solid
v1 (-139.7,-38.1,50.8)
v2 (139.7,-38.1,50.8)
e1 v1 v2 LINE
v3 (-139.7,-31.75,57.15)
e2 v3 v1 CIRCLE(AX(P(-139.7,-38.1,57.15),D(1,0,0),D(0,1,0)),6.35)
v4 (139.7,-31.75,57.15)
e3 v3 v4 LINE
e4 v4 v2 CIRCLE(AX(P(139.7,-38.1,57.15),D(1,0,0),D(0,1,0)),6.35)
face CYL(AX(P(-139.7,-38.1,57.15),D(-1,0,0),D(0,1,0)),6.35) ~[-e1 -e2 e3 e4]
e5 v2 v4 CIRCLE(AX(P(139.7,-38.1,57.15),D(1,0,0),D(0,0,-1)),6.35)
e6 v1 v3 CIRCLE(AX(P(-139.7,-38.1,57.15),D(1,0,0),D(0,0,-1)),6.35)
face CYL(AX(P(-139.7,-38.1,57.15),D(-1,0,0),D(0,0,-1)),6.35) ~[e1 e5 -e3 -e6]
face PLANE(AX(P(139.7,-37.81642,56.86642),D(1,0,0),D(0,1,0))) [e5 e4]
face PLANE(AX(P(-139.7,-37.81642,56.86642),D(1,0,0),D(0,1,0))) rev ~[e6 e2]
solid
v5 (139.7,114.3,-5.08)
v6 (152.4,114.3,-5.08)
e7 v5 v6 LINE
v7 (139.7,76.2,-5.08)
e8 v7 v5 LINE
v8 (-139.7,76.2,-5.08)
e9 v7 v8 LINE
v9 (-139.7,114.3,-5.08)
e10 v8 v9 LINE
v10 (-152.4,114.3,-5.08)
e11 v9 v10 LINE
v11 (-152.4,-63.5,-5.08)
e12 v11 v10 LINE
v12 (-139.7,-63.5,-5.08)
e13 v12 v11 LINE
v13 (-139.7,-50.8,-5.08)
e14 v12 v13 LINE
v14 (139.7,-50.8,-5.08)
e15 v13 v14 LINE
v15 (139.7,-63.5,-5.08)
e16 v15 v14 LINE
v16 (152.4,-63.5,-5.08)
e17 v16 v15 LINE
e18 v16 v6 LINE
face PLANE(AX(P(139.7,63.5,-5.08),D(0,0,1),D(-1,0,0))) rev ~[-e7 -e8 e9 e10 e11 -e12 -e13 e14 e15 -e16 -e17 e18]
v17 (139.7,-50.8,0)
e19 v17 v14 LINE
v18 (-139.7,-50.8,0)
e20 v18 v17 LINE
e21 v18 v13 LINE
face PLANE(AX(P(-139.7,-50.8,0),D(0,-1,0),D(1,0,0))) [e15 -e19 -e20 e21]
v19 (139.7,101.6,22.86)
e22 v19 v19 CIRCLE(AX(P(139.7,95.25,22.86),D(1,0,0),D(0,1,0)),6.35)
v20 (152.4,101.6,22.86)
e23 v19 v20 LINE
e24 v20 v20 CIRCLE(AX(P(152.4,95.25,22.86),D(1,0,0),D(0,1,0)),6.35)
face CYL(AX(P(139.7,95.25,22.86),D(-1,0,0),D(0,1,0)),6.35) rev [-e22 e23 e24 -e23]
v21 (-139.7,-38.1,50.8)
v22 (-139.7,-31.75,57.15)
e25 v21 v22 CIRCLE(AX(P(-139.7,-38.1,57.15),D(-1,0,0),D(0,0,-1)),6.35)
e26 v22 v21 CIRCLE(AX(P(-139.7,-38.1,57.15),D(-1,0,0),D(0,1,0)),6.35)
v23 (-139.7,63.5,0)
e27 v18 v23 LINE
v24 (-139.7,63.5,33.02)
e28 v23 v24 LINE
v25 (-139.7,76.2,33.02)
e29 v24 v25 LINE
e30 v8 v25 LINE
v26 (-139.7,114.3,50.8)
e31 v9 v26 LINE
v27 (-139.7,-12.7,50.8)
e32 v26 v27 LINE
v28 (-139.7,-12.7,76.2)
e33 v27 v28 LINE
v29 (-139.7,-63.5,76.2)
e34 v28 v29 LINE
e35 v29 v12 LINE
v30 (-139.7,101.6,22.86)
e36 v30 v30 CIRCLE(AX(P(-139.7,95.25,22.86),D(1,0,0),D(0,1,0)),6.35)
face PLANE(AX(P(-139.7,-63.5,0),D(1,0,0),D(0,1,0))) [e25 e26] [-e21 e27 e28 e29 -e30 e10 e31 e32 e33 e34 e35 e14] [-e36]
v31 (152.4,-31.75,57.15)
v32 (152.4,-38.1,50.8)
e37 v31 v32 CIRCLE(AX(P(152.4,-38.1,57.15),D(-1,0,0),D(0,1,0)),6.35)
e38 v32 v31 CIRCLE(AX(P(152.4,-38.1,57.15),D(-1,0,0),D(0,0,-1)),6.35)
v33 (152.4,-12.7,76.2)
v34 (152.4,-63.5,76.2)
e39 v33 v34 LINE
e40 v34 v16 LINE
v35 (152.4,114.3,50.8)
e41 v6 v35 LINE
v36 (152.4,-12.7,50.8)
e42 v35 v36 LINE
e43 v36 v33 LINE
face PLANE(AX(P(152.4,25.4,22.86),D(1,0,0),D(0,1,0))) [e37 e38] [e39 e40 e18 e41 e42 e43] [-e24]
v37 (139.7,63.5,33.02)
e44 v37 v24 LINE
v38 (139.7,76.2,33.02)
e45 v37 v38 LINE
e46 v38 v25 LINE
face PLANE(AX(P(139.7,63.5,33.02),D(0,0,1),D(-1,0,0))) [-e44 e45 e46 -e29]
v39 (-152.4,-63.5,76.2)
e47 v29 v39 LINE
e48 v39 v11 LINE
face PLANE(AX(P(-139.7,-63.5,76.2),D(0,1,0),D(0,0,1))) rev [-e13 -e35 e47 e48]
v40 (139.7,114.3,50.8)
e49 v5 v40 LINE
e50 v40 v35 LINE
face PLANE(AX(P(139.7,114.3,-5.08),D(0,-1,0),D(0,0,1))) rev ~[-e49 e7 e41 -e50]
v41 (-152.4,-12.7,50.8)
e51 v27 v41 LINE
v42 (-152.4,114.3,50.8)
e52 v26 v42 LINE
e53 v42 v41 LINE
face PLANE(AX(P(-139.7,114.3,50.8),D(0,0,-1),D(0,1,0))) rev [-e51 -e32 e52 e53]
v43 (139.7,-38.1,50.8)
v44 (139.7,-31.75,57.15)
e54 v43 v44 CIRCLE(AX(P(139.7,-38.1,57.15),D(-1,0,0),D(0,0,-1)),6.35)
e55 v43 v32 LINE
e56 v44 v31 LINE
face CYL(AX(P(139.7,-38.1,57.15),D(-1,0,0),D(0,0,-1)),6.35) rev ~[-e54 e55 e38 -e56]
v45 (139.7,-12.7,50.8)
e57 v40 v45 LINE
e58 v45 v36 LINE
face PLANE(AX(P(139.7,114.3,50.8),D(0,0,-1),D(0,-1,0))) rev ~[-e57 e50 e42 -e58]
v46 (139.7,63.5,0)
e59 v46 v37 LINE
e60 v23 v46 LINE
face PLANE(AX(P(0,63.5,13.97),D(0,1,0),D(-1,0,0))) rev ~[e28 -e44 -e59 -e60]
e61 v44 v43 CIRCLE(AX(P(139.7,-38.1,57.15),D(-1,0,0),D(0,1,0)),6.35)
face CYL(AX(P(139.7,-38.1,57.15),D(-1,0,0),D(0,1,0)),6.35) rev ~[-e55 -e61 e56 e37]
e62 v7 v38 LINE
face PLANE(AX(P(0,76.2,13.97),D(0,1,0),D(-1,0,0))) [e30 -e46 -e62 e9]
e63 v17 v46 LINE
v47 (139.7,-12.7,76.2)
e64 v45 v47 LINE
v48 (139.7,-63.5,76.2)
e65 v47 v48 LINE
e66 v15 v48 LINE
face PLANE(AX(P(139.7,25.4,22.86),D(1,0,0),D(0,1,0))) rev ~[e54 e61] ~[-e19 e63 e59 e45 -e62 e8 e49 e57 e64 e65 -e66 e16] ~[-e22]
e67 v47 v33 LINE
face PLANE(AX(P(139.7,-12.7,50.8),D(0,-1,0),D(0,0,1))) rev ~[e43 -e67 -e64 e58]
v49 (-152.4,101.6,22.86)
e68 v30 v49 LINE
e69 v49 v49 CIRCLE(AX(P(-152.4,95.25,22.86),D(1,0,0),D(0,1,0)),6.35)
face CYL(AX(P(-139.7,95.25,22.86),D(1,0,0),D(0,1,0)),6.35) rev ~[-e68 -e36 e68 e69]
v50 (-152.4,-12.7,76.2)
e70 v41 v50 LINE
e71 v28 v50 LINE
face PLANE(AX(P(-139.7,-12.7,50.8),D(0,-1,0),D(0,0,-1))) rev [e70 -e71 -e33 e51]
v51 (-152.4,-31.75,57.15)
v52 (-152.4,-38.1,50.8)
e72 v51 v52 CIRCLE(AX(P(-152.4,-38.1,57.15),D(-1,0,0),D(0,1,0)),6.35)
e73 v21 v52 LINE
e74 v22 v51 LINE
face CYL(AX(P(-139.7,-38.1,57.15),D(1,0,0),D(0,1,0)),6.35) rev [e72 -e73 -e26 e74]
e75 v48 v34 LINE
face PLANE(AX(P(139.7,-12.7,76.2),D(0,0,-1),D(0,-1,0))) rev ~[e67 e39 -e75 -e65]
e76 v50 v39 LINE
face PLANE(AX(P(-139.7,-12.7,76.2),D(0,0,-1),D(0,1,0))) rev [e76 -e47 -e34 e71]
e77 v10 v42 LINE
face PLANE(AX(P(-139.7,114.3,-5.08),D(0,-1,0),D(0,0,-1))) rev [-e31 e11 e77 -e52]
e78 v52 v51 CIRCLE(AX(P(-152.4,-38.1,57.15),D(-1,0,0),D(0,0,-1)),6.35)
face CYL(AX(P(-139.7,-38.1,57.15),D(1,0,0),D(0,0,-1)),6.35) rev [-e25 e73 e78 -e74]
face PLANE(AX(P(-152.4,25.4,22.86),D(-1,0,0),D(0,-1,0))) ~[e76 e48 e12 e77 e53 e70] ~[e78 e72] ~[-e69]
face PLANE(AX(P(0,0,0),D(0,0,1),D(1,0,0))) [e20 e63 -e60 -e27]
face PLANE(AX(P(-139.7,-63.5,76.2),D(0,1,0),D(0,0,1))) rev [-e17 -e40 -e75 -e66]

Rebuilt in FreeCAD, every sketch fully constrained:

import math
import FreeCAD as App
import Part
import Sketcher

V = App.Vector
Q = App.Units.Quantity

doc = App.newDocument("Part")
body = doc.addObject("PartDesign::Body", "Body")

# Sketch on XY plane
sketch1 = body.newObject("Sketcher::SketchObject", "Sketch")
sketch1.AttachmentSupport = (doc.getObject("XY_Plane"), [""])
sketch1.MapMode = "FlatFace"
sketch1.addGeometry([
    Part.LineSegment(V(-140, 64, 0), V(-140, -64, 0)),
    Part.LineSegment(V(-140, -64, 0), V(140, -64, 0)),
    Part.LineSegment(V(140, -64, 0), V(140, 64, 0)),
    Part.LineSegment(V(140, 64, 0), V(-140, 64, 0)),
], False)
sketch1.addConstraint([
    Sketcher.Constraint("Coincident", 0, 2, 1, 1),
    Sketcher.Constraint("Coincident", 1, 2, 2, 1),
    Sketcher.Constraint("Coincident", 2, 2, 3, 1),
    Sketcher.Constraint("Coincident", 3, 2, 0, 1),
    Sketcher.Constraint("Vertical", 0),
    Sketcher.Constraint("Horizontal", 1),
    Sketcher.Constraint("Vertical", 2),
    Sketcher.Constraint("Horizontal", 3),
    Sketcher.Constraint("Symmetric", 0, 2, 2, 2, -1, 1),
    Sketcher.Constraint("DistanceX", 1, 1, 1, 2, Q("11 in")),
    Sketcher.Constraint("DistanceY", 0, 2, 0, 1, Q("5 in")),
])
pad1 = body.newObject("PartDesign::Pad", "Pad")
pad1.Profile = sketch1
pad1.Length = Q("0.2 in")
pad1.Reversed = True

# Sketch on YZ plane
sketch2 = body.newObject("Sketcher::SketchObject", "Sketch001")
sketch2.AttachmentSupport = (doc.getObject("YZ_Plane"), [""])
sketch2.MapMode = "FlatFace"
sketch2.AttachmentOffset = App.Placement(V(0, 0, 5.5 * 25.4), App.Rotation())
sketch2.addGeometry([
    Part.LineSegment(V(-64, -5, 0), V(114, -5, 0)),  # 0
    Part.LineSegment(V(114, -5, 0), V(114, 51, 0)),  # 1
    Part.LineSegment(V(114, 51, 0), V(-13, 51, 0)),  # 2
    Part.LineSegment(V(-13, 51, 0), V(-13, 76, 0)),  # 3
    Part.LineSegment(V(-13, 76, 0), V(-64, 76, 0)),  # 4
    Part.LineSegment(V(-64, 76, 0), V(-64, -5, 0)),  # 5
    Part.Circle(V(95, 23, 0), V(0, 0, 1), 6),  # 6
    Part.ArcOfCircle(Part.Circle(V(-38, 57, 0), V(0, 0, 1), 6), math.radians(0), math.radians(270)),  # 7
    Part.ArcOfCircle(Part.Circle(V(-38, 57, 0), V(0, 0, 1), 6), math.radians(-90), math.radians(0)),  # 8
], False)
sketch2.addConstraint([
    Sketcher.Constraint("Coincident", 0, 2, 1, 1),
    Sketcher.Constraint("Coincident", 1, 2, 2, 1),
    Sketcher.Constraint("Coincident", 2, 2, 3, 1),
    Sketcher.Constraint("Coincident", 3, 2, 4, 1),
    Sketcher.Constraint("Coincident", 4, 2, 5, 1),
    Sketcher.Constraint("Coincident", 5, 2, 0, 1),
    Sketcher.Constraint("Tangent", 7, 1, 8, 2),
    Sketcher.Constraint("Coincident", 8, 1, 7, 2),
    Sketcher.Constraint("Horizontal", 0),
    Sketcher.Constraint("Vertical", 1),
    Sketcher.Constraint("Horizontal", 2),
    Sketcher.Constraint("Vertical", 3),
    Sketcher.Constraint("Horizontal", 4),
    Sketcher.Constraint("Vertical", 5),
    Sketcher.Constraint("Equal", 6, 7),
    Sketcher.Constraint("Horizontal", 8, 3, 7, 1),
    Sketcher.Constraint("Horizontal", 2, 2, 8, 1),
    Sketcher.Constraint("Vertical", 7, 3, 8, 1),
    Sketcher.Constraint("Diameter", 6, Q("0.5 in")),
    Sketcher.Constraint("DistanceX", 0, 1, 0, 2, Q("7 in")),
    Sketcher.Constraint("DistanceX", 2, 2, 2, 1, Q("5 in")),
    Sketcher.Constraint("DistanceY", 3, 1, 3, 2, Q("1 in")),
    Sketcher.Constraint("DistanceY", 1, 1, 1, 2, Q("2.2 in")),
    Sketcher.Constraint("DistanceY", -1, 1, 1, 2, Q("2 in")),
    Sketcher.Constraint("DistanceX", 7, 3, 0, 2, Q("6 in")),
    Sketcher.Constraint("DistanceY", -1, 1, 6, 3, Q("0.9 in")),
    Sketcher.Constraint("DistanceX", 7, 3, -1, 1, Q("1.5 in")),
    Sketcher.Constraint("DistanceX", -1, 1, 6, 3, Q("3.75 in")),
])
pad2 = body.newObject("PartDesign::Pad", "Pad001")
pad2.Profile = sketch2
pad2.Length = Q("0.5 in")
body2 = doc.addObject("PartDesign::Body", "Body001")
doc.recompute()

body2.BaseFeature = body
doc.recompute()

mirroring = doc.addObject("Part::Mirroring", "Mirroring")
mirroring.Source = body
mirroring.Base = V(0, 0, 0)
mirroring.Normal = V(1, 0, 0)
body3 = doc.addObject("PartDesign::Body", "Body002")
body3.BaseFeature = mirroring
boolean = body2.newObject("PartDesign::Boolean", "Boolean")
boolean.Type = "Fuse"
boolean.addObjects([body3])
doc.recompute()

# Sketch on XZ plane
sketch3 = body2.newObject("Sketcher::SketchObject", "Sketch002")
sketch3.AttachmentSupport = (doc.getObject("XZ_Plane001"), [""])
sketch3.MapMode = "FlatFace"
sketch3.AttachmentOffset = App.Placement(V(0, 0, -2.5 * 25.4), App.Rotation())
sketch3.addGeometry([
    Part.LineSegment(V(140, 33, 0), V(140, -5, 0)),
    Part.LineSegment(V(140, -5, 0), V(-140, -5, 0)),
    Part.LineSegment(V(-140, -5, 0), V(-140, 33, 0)),
    Part.LineSegment(V(-140, 33, 0), V(140, 33, 0)),
], False)
sketch3.addConstraint([
    Sketcher.Constraint("Coincident", 0, 2, 1, 1),
    Sketcher.Constraint("Coincident", 1, 2, 2, 1),
    Sketcher.Constraint("Coincident", 2, 2, 3, 1),
    Sketcher.Constraint("Coincident", 3, 2, 0, 1),
    Sketcher.Constraint("Vertical", 0),
    Sketcher.Constraint("Horizontal", 1),
    Sketcher.Constraint("Vertical", 2),
    Sketcher.Constraint("Horizontal", 3),
    Sketcher.Constraint("DistanceX", 1, 2, 1, 1, Q("11 in")),
    Sketcher.Constraint("DistanceY", 0, 2, 0, 1, Q("1.5 in")),
    Sketcher.Constraint("DistanceX", -1, 1, 0, 2, Q("5.5 in")),
    Sketcher.Constraint("DistanceY", 0, 2, -1, 1, Q("0.2 in")),
])
pad3 = body2.newObject("PartDesign::Pad", "Pad002")
pad3.Profile = sketch3
pad3.Length = Q("0.5 in")
pad3.Reversed = True

# Sketch on XY plane
sketch4 = body2.newObject("Sketcher::SketchObject", "Sketch003")
sketch4.AttachmentSupport = (doc.getObject("XY_Plane001"), [""])
sketch4.MapMode = "FlatFace"
sketch4.addGeometry([
    Part.LineSegment(V(-140, -51, 0), V(-140, -64, 0)),
    Part.LineSegment(V(-140, -64, 0), V(140, -64, 0)),
    Part.LineSegment(V(140, -64, 0), V(140, -51, 0)),
    Part.LineSegment(V(140, -51, 0), V(-140, -51, 0)),
], False)
sketch4.addConstraint([
    Sketcher.Constraint("Coincident", 0, 2, 1, 1),
    Sketcher.Constraint("Coincident", 1, 2, 2, 1),
    Sketcher.Constraint("Coincident", 2, 2, 3, 1),
    Sketcher.Constraint("Coincident", 3, 2, 0, 1),
    Sketcher.Constraint("Vertical", 0),
    Sketcher.Constraint("Horizontal", 1),
    Sketcher.Constraint("Vertical", 2),
    Sketcher.Constraint("Horizontal", 3),
    Sketcher.Constraint("DistanceX", 1, 1, 1, 2, Q("11 in")),
    Sketcher.Constraint("DistanceY", 0, 2, 0, 1, Q("0.5 in")),
    Sketcher.Constraint("DistanceY", 2, 2, -1, 1, Q("2 in")),
    Sketcher.Constraint("DistanceX", 0, 2, -1, 1, Q("5.5 in")),
])
pocket1 = body2.newObject("PartDesign::Pocket", "Pocket")
pocket1.Profile = sketch4
pocket1.Length = Q("1 in")
body4 = doc.addObject("PartDesign::Body", "Body003")

# Sketch on YZ plane
sketch5 = body4.newObject("Sketcher::SketchObject", "Sketch004")
sketch5.AttachmentSupport = (doc.getObject("YZ_Plane003"), [""])
sketch5.MapMode = "FlatFace"
sketch5.AttachmentOffset = App.Placement(V(0, 0, -5.5 * 25.4), App.Rotation())
sketch5.addGeometry([
    Part.ArcOfCircle(Part.Circle(V(-38, 57, 0), V(0, 0, 1), 6), math.radians(-90), math.radians(0)),
    Part.ArcOfCircle(Part.Circle(V(-38, 57, 0), V(0, 0, 1), 6), math.radians(0), math.radians(270)),
], False)
sketch5.addConstraint([
    Sketcher.Constraint("Tangent", 0, 1, 1, 2),
    Sketcher.Constraint("Coincident", 1, 1, 0, 2),
    Sketcher.Constraint("Horizontal", 0, 3, 1, 1),
    Sketcher.Constraint("Vertical", 1, 3, 0, 1),
    Sketcher.Constraint("Radius", 0, Q("0.25 in")),
    Sketcher.Constraint("DistanceY", -1, 1, 0, 1, Q("2 in")),
    Sketcher.Constraint("DistanceX", 0, 3, -1, 1, Q("1.5 in")),
])
pad4 = body4.newObject("PartDesign::Pad", "Pad003")
pad4.Profile = sketch5
pad4.Length = Q("11 in")
mirroring.Visibility = False

doc.recompute()
